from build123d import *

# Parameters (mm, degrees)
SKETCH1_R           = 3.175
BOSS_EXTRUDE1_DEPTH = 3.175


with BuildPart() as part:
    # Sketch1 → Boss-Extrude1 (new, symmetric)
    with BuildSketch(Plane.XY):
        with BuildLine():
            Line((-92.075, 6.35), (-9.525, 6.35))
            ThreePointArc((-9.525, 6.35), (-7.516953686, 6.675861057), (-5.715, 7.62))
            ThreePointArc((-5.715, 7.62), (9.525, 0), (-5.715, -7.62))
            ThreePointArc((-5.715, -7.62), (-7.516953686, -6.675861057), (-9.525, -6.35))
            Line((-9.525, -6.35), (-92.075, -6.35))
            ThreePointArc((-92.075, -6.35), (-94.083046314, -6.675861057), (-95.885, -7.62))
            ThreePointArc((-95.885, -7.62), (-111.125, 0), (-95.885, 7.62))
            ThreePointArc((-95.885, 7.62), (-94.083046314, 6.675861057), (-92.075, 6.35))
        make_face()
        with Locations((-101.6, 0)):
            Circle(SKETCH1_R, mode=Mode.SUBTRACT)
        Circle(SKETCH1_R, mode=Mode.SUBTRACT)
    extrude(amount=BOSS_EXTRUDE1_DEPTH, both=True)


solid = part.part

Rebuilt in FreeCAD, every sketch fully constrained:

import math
import FreeCAD as App
import Part
import Sketcher
from FreeCAD import Vector
Q = App.Units.Quantity

doc = App.newDocument("Part")
body = doc.addObject("PartDesign::Body", "Body")

sketch1 = doc.addObject("Sketcher::SketchObject", "Sketch")
body.addObject(sketch1)
sketch1.AttachmentSupport = (doc.XY_Plane, [""])
sketch1.MapMode = "FlatFace"
sketch1.addGeometry([
    Part.LineSegment(Vector(-9.5, 6.3, 0), Vector(-92.1, 6.3, 0)),
    Part.ArcOfCircle(Part.Circle(Vector(-92.1, 12.7, 0), Vector(0, 0, 1), 6.3), math.radians(-127), math.radians(-90)),
    Part.ArcOfCircle(Part.Circle(Vector(-101.6, 0, 0), Vector(0, 0, 1), 9.5), math.radians(53), math.radians(307)),
    Part.ArcOfCircle(Part.Circle(Vector(-92.1, -12.7, 0), Vector(0, 0, 1), 6.3), math.radians(90), math.radians(127)),
    Part.LineSegment(Vector(-92.1, -6.3, 0), Vector(-9.5, -6.3, 0)),
    Part.ArcOfCircle(Part.Circle(Vector(-9.5, -12.7, 0), Vector(0, 0, 1), 6.3), math.radians(53), math.radians(90)),
    Part.ArcOfCircle(Part.Circle(Vector(0, 0, 0), Vector(0, 0, 1), 9.5), math.radians(-127), math.radians(127)),
    Part.ArcOfCircle(Part.Circle(Vector(-9.5, 12.7, 0), Vector(0, 0, 1), 6.3), math.radians(-90), math.radians(-53)),
    Part.Circle(Vector(0, 0, 0), Vector(0, 0, 1), 3.2),
    Part.Circle(Vector(-101.6, 0, 0), Vector(0, 0, 1), 3.2),
], False)
sketch1.addConstraint([
    Sketcher.Constraint("Tangent", 0, 2, 1, 2),
    Sketcher.Constraint("Tangent", 1, 1, 2, 1),
    Sketcher.Constraint("Tangent", 2, 2, 3, 2),
    Sketcher.Constraint("Tangent", 3, 1, 4, 1),
    Sketcher.Constraint("Tangent", 4, 2, 5, 2),
    Sketcher.Constraint("Tangent", 5, 1, 6, 1),
    Sketcher.Constraint("Tangent", 6, 2, 7, 2),
    Sketcher.Constraint("Tangent", 7, 1, 0, 1),
    Sketcher.Constraint("Horizontal", 0),
    Sketcher.Constraint("Horizontal", 4),
    Sketcher.Constraint("Coincident", 6, 3, -1, 1),
    Sketcher.Constraint("Coincident", 8, 3, -1, 1),
    Sketcher.Constraint("Coincident", 9, 3, 2, 3),
    Sketcher.Constraint("Equal", 1, 3),
    Sketcher.Constraint("Equal", 3, 5),
    Sketcher.Constraint("Equal", 2, 6),
    Sketcher.Constraint("Equal", 5, 7),
    Sketcher.Constraint("Equal", 8, 9),
    Sketcher.Constraint("Symmetric", 1, 3, 3, 3, -1),
    Sketcher.Constraint("Diameter", 8, Q("0.25 in")),
    Sketcher.Constraint("Radius", 1, Q("0.25 in")),
    Sketcher.Constraint("DistanceX", 2, 3, -1, 1, Q("4 in")),
    Sketcher.Constraint("Radius", 2, Q("0.375 in")),
    Sketcher.Constraint("DistanceY", 3, 3, 1, 3, Q("1 in")),
])
pad1 = doc.addObject("PartDesign::Pad", "Pad")
body.addObject(pad1)
pad1.Profile = sketch1
pad1.Length = Q("0.25 in")
pad1.Midplane = True

doc.recompute()
